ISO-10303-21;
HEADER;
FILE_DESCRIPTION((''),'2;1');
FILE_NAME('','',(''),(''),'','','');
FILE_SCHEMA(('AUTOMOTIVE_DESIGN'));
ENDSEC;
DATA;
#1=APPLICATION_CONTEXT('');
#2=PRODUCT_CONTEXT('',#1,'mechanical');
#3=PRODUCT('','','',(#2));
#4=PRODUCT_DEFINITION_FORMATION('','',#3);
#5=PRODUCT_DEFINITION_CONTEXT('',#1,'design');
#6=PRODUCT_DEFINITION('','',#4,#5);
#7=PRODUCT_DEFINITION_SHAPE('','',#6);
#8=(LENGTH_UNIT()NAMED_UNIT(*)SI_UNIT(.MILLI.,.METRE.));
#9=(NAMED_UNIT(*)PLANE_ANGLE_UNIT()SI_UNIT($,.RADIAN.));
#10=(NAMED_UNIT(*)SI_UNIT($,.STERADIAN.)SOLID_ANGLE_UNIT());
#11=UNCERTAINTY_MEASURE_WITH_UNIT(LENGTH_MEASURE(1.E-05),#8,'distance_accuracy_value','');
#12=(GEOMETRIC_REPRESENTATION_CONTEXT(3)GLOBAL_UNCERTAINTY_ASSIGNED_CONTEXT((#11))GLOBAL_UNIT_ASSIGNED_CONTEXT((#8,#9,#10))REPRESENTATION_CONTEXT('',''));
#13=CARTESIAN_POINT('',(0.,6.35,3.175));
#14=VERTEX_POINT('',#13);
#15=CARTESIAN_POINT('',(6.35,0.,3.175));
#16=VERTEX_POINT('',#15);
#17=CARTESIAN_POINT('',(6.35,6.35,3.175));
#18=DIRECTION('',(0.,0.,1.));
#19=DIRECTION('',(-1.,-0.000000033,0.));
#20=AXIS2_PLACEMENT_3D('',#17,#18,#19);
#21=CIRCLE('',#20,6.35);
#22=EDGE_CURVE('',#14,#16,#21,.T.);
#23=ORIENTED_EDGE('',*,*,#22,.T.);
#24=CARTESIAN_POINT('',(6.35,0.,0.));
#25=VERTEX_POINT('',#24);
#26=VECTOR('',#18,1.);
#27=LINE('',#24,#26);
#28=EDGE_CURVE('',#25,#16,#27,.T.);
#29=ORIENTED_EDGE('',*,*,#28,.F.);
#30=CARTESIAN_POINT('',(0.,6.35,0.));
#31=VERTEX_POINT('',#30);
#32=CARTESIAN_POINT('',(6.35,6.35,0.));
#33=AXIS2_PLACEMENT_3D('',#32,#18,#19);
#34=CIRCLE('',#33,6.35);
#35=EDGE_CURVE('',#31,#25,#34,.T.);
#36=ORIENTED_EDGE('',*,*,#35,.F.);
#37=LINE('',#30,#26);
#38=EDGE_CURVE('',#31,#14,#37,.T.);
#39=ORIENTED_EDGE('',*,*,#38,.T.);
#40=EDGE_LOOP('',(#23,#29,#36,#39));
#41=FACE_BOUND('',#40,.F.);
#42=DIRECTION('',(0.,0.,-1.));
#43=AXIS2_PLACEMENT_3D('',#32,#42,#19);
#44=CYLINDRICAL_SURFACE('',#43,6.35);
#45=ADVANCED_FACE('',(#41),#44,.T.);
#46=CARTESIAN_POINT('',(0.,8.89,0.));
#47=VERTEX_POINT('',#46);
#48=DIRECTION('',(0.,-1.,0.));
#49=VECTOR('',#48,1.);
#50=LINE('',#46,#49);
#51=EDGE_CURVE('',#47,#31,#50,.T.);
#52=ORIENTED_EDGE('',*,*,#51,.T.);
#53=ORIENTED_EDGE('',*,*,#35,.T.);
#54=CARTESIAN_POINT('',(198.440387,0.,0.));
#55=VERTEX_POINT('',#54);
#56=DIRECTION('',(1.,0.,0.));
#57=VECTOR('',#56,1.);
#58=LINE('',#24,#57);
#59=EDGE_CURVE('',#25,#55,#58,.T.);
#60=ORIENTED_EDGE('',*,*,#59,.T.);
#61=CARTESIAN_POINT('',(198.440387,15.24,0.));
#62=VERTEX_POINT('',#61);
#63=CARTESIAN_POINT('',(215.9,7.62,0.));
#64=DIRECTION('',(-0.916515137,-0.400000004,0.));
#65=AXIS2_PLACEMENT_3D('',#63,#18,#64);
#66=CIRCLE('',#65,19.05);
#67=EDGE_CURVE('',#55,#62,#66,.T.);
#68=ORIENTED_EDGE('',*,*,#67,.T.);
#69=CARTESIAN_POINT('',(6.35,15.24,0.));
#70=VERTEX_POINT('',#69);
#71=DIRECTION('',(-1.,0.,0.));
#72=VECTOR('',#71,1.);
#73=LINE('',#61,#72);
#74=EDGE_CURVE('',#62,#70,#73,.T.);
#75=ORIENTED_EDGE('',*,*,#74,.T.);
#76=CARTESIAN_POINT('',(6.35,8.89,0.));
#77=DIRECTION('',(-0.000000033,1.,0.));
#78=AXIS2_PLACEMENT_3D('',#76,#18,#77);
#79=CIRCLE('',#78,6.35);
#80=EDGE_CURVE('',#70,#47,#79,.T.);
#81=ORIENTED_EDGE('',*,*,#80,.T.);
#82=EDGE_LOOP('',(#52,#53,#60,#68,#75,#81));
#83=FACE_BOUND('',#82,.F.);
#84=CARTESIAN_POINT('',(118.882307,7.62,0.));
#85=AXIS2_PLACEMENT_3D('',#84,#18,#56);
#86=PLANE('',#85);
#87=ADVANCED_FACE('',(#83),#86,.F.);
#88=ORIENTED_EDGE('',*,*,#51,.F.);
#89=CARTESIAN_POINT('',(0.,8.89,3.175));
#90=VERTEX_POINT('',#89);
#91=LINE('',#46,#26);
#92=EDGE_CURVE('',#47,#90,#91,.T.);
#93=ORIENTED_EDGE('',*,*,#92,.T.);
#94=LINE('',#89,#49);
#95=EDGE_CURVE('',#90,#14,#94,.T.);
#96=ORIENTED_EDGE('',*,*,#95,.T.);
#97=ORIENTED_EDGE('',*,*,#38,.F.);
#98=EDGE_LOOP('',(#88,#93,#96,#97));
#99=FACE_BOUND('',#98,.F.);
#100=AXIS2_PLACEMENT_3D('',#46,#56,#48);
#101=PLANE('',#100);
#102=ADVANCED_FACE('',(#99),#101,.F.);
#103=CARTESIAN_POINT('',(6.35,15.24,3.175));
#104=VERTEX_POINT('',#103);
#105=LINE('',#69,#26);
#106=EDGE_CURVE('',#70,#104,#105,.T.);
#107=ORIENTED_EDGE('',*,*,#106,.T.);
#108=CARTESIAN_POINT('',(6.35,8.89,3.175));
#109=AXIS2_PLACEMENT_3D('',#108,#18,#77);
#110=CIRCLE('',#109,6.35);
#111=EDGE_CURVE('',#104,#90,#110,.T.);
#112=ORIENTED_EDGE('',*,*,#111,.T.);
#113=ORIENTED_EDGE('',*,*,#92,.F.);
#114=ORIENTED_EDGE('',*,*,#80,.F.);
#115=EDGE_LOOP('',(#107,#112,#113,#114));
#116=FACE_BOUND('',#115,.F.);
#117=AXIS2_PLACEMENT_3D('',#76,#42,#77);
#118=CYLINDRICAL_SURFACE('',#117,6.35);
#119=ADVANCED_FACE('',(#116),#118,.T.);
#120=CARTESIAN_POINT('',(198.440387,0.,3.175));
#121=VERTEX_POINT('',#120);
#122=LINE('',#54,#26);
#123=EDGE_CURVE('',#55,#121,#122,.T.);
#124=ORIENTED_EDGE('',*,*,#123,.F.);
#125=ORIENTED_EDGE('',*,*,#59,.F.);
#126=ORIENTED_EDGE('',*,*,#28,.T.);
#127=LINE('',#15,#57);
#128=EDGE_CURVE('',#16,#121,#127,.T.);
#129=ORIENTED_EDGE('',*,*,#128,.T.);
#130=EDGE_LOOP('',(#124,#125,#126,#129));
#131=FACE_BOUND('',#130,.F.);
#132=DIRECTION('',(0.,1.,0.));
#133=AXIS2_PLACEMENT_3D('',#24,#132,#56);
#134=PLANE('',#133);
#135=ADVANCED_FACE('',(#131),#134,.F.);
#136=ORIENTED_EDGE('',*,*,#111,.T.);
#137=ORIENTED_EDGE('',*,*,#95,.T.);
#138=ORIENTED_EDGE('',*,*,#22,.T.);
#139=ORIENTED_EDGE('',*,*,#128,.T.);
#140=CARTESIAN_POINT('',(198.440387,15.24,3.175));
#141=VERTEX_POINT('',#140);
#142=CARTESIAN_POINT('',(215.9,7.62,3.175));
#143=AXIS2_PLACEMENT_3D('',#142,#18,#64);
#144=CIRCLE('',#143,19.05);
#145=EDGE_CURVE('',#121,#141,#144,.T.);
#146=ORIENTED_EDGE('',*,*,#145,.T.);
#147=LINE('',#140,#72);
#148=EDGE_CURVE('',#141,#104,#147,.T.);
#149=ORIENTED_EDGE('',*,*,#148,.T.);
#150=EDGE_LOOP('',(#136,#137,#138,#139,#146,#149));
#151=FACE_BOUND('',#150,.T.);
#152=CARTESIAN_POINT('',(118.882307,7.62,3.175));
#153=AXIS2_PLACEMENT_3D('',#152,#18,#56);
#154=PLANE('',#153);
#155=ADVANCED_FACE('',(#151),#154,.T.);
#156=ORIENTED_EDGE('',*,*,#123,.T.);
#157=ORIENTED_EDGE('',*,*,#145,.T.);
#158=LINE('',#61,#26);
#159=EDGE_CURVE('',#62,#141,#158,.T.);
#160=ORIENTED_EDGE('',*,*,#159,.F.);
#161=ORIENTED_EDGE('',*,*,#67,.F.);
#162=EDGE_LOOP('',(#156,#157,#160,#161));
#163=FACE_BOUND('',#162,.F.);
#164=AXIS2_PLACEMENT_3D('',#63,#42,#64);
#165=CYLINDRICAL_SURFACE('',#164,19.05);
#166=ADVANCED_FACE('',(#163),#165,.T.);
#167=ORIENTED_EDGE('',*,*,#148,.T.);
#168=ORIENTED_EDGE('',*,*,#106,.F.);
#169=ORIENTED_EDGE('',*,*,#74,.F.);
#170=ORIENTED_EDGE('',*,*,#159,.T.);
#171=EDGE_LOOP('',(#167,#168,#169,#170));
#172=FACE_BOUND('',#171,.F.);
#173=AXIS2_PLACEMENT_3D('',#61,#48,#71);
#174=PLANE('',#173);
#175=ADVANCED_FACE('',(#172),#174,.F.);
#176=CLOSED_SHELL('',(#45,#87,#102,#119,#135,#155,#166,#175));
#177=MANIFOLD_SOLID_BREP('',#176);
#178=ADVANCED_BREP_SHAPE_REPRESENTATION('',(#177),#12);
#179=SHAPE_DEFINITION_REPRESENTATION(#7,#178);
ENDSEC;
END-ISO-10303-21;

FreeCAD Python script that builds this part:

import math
import FreeCAD as App
import Part
import Sketcher
from FreeCAD import Vector
Q = App.Units.Quantity

doc = App.newDocument("Part")
params = doc.addObject("Spreadsheet::Sheet", "Params")
for row, (alias, value) in enumerate([
    ("sketch1_radius", "0.25 in"),
    ("sketch1_radius2", "0.75 in"),
    ("sketch1_height", "0.1 in"),
    ("pad1_length", "0.125 in"),
], start=1):
    params.set(f"A{row}", alias)
    params.set(f"B{row}", "=" + value)
    params.setAlias(f"B{row}", alias)

body = doc.addObject("PartDesign::Body", "Body")

# Sketch on XY plane
sketch1 = body.newObject("Sketcher::SketchObject", "Sketch")
sketch1.AttachmentSupport = (doc.getObject("XY_Plane"), [""])
sketch1.MapMode = "FlatFace"
sketch1.addGeometry([
    Part.ArcOfCircle(Part.Circle(Vector(6.35, 6.35, 0), Vector(0, 0, 1), 6.35), math.radians(-179.999998), math.radians(-90.000002)),  # 0
    Part.LineSegment(Vector(6.35, 0, 0), Vector(198.440387, 0, 0)),  # 1
    Part.ArcOfCircle(Part.Circle(Vector(215.9, 7.62, 0), Vector(0, 0, 1), 19.05), math.radians(-156.421821), math.radians(156.421821)),  # 2
    Part.LineSegment(Vector(198.440387, 15.24, 0), Vector(6.35, 15.24, 0)),  # 3
    Part.ArcOfCircle(Part.Circle(Vector(6.35, 8.89, 0), Vector(0, 0, 1), 6.35), math.radians(90.000002), math.radians(179.999998)),  # 4
    Part.LineSegment(Vector(0, 8.89, 0), Vector(0, 6.35, 0)),  # 5
], False)
sketch1.addConstraint([
    Sketcher.Constraint("Tangent", 0, 2, 1, 1),
    Sketcher.Constraint("Coincident", 1, 2, 2, 1),
    Sketcher.Constraint("Coincident", 2, 2, 3, 1),
    Sketcher.Constraint("Tangent", 3, 2, 4, 1),
    Sketcher.Constraint("Tangent", 4, 2, 5, 1),
    Sketcher.Constraint("Tangent", 5, 2, 0, 1),
    Sketcher.Constraint("Horizontal", 1),
    Sketcher.Constraint("Horizontal", 3),
    Sketcher.Constraint("Vertical", 5),
    Sketcher.Constraint("Equal", 0, 4),
    Sketcher.Constraint("PointOnObject", 0, 2, -1),
    Sketcher.Constraint("PointOnObject", 4, 2, -2),
    Sketcher.Constraint("Vertical", 1, 2, 2, 2),
    Sketcher.Constraint("Radius", 0, Q("0.25 in")),
    Sketcher.Constraint("Radius", 2, Q("0.75 in")),
    Sketcher.Constraint("DistanceY", 5, 2, 5, 1, Q("0.1 in")),
    Sketcher.Constraint("DistanceX", -1, 1, 2, 3, Q("8.5 in")),
])
sketch1.setExpression("Constraints[13]", "Params.sketch1_radius")
sketch1.setExpression("Constraints[14]", "Params.sketch1_radius2")
sketch1.setExpression("Constraints[15]", "Params.sketch1_height")
pad1 = body.newObject("PartDesign::Pad", "Pad")
pad1.Profile = sketch1
pad1.setExpression("Length", "Params.pad1_length")

doc.recompute()
